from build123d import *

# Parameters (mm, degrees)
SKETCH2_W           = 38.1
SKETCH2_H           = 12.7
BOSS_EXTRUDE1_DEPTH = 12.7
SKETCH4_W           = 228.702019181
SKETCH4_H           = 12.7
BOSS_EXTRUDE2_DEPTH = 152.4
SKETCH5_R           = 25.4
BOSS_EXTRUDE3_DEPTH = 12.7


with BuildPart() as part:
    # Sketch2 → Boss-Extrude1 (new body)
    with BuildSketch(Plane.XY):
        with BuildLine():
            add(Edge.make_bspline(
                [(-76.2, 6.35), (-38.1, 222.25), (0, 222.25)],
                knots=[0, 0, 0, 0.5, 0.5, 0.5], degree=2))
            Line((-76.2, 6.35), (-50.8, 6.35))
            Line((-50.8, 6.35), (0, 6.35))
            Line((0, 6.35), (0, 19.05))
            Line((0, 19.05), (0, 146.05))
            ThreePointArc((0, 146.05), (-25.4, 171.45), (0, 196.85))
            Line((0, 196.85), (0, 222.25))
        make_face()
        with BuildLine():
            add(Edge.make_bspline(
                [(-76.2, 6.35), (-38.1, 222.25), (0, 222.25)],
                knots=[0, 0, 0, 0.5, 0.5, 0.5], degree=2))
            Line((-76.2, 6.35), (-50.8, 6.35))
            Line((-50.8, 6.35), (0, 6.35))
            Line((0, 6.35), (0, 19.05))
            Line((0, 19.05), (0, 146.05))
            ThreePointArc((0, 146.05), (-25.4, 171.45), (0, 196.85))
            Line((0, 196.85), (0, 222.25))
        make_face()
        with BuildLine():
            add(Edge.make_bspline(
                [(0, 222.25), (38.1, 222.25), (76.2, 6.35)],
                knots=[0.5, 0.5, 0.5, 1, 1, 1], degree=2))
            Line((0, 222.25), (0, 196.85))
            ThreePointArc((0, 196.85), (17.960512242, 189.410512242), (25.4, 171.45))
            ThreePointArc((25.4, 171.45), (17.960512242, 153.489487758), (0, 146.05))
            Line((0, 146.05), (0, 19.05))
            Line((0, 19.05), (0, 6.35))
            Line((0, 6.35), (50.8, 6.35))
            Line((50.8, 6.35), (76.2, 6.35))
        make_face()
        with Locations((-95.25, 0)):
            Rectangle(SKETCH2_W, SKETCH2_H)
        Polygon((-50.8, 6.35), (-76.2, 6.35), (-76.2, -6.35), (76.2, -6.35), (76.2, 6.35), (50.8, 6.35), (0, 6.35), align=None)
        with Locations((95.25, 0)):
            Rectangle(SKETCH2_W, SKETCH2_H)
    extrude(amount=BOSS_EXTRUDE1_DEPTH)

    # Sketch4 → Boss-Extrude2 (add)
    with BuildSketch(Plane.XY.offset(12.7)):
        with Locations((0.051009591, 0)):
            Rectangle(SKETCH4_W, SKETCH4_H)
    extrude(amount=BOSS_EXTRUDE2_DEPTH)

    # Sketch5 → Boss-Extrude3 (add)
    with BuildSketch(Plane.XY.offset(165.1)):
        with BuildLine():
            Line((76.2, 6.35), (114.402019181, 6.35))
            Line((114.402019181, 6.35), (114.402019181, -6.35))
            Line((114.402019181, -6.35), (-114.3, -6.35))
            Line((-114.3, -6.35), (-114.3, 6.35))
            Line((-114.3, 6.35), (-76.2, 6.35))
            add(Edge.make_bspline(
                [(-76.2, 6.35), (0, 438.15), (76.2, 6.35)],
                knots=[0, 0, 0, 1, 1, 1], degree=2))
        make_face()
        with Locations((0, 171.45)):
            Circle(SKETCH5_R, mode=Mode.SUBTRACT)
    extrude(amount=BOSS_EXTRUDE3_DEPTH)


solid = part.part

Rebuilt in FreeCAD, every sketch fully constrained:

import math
import FreeCAD as App
import Part
import Sketcher
Q = App.Units.Quantity


def add_polygon(sketch, points):
    """Adds a closed chain of lines whose ends are joined by coincident constraints."""
    first, n = sketch.GeometryCount, len(points)
    for a, b in zip(points, points[1:] + points[:1]):
        sketch.addGeometry(Part.LineSegment(App.Vector(*a, 0), App.Vector(*b, 0)), False)
    for i in range(n):
        sketch.addConstraint(Sketcher.Constraint("Coincident", first + i, 2, first + (i + 1) % n, 1))

doc = App.newDocument("Part")
body = doc.addObject("PartDesign::Body", "Body")

# Sketch on XY plane
sketch1 = body.newObject("Sketcher::SketchObject", "Sketch")
sketch1.AttachmentSupport = (doc.getObject("XY_Plane"), [""])
sketch1.MapMode = "FlatFace"
sketch1.addGeometry([
    Part.BSplineCurve([App.Vector(76.2, 6.35, 0), App.Vector(0, 438.15, 0), App.Vector(-76.2, 6.35, 0)], [3, 3], [0.5, 1.5], False, 2, [1, 1, 1], False),  # 0
    Part.LineSegment(App.Vector(-76.2, 6.35, 0), App.Vector(-114.3, 6.35, 0)),  # 1
    Part.LineSegment(App.Vector(-114.3, 6.35, 0), App.Vector(-114.3, -6.35, 0)),  # 2
    Part.LineSegment(App.Vector(-114.3, -6.35, 0), App.Vector(114.3, -6.35, 0)),  # 3
    Part.LineSegment(App.Vector(114.3, -6.35, 0), App.Vector(114.3, 6.35, 0)),  # 4
    Part.LineSegment(App.Vector(114.3, 6.35, 0), App.Vector(76.2, 6.35, 0)),  # 5
    Part.ArcOfCircle(Part.Circle(App.Vector(0, 171.45, 0), App.Vector(0, 0, 1), 25.4), math.radians(90), math.radians(270)),  # 6
    Part.ArcOfCircle(Part.Circle(App.Vector(0, 171.45, 0), App.Vector(0, 0, 1), 25.4), math.radians(0), math.radians(90)),  # 7
    Part.ArcOfCircle(Part.Circle(App.Vector(0, 171.45, 0), App.Vector(0, 0, 1), 25.4), math.radians(-90), math.radians(0)),  # 8
], False)
sketch1.addConstraint([
    Sketcher.Constraint("Block", 0),
    Sketcher.Constraint("Coincident", 0, 2, 1, 1),
    Sketcher.Constraint("Coincident", 1, 2, 2, 1),
    Sketcher.Constraint("Coincident", 2, 2, 3, 1),
    Sketcher.Constraint("Coincident", 3, 2, 4, 1),
    Sketcher.Constraint("Coincident", 4, 2, 5, 1),
    Sketcher.Constraint("Coincident", 5, 2, 0, 1),
    Sketcher.Constraint("Tangent", 6, 1, 7, 2),
    Sketcher.Constraint("Tangent", 7, 1, 8, 2),
    Sketcher.Constraint("Tangent", 8, 1, 6, 2),
    Sketcher.Constraint("Horizontal", 1),
    Sketcher.Constraint("Vertical", 2),
    Sketcher.Constraint("Horizontal", 3),
    Sketcher.Constraint("Vertical", 4),
    Sketcher.Constraint("Horizontal", 5),
    Sketcher.Constraint("Symmetric", 1, 2, 3, 2, -1, 1),
    Sketcher.Constraint("PointOnObject", 6, 3, -2),
    Sketcher.Constraint("PointOnObject", 6, 1, -2),
    Sketcher.Constraint("PointOnObject", 8, 1, -2),
    Sketcher.Constraint("Horizontal", 8, 3, 7, 1),
    Sketcher.Constraint("Radius", 6, Q("1 in")),
    Sketcher.Constraint("DistanceX", 3, 1, 3, 2, Q("9 in")),
    Sketcher.Constraint("DistanceY", 2, 2, 6, 3, Q("7 in")),
])
pad1 = body.newObject("PartDesign::Pad", "Pad")
pad1.Profile = sketch1
pad1.Length = Q("0.5 in")

# Sketch on XY plane
sketch2 = body.newObject("Sketcher::SketchObject", "Sketch001")
sketch2.AttachmentSupport = (doc.getObject("XY_Plane"), [""])
sketch2.MapMode = "FlatFace"
sketch2.AttachmentOffset = App.Placement(App.Vector(0, 0, 0.5 * 25.4), App.Rotation())
add_polygon(sketch2, [(-114.3, 6.35), (-114.3, -6.35), (114.402019, -6.35), (114.402019, 6.35)])  # lines 0-3
sketch2.addConstraint([
    Sketcher.Constraint("Vertical", 0),
    Sketcher.Constraint("Horizontal", 1),
    Sketcher.Constraint("Vertical", 2),
    Sketcher.Constraint("Horizontal", 3),
    Sketcher.Constraint("DistanceY", 0, 2, 0, 1, Q("0.5 in")),
    Sketcher.Constraint("DistanceX", 0, 2, -1, 1, Q("4.5 in")),
    Sketcher.Constraint("DistanceY", 0, 2, -1, 1, Q("0.25 in")),
    Sketcher.Constraint("DistanceX", 1, 1, 1, 2, Q("228.702019 mm")),
])
pad2 = body.newObject("PartDesign::Pad", "Pad001")
pad2.Profile = sketch2
pad2.Length = Q("6 in")

# Sketch on XY plane
sketch3 = body.newObject("Sketcher::SketchObject", "Sketch002")
sketch3.AttachmentSupport = (doc.getObject("XY_Plane"), [""])
sketch3.MapMode = "FlatFace"
sketch3.AttachmentOffset = App.Placement(App.Vector(0, 0, 6.5 * 25.4), App.Rotation())
sketch3.addGeometry([
    Part.LineSegment(App.Vector(114.402019, 6.35, 0), App.Vector(76.2, 6.35, 0)),  # 0
    Part.BSplineCurve([App.Vector(-76.2, 6.35, 0), App.Vector(0, 438.15, 0), App.Vector(76.2, 6.35, 0)], [3, 3], [0, 1], False, 2, [1, 1, 1], False),  # 1
    Part.LineSegment(App.Vector(-76.2, 6.35, 0), App.Vector(-114.3, 6.35, 0)),  # 2
    Part.LineSegment(App.Vector(-114.3, 6.35, 0), App.Vector(-114.3, -6.35, 0)),  # 3
    Part.LineSegment(App.Vector(-114.3, -6.35, 0), App.Vector(114.402019, -6.35, 0)),  # 4
    Part.LineSegment(App.Vector(114.402019, -6.35, 0), App.Vector(114.402019, 6.35, 0)),  # 5
    Part.Circle(App.Vector(0, 171.45, 0), App.Vector(0, 0, 1), 25.4),  # 6
], False)
sketch3.addConstraint([
    Sketcher.Constraint("Block", 1),
    Sketcher.Constraint("Coincident", 0, 2, 1, 2),
    Sketcher.Constraint("Coincident", 1, 1, 2, 1),
    Sketcher.Constraint("Coincident", 2, 2, 3, 1),
    Sketcher.Constraint("Coincident", 3, 2, 4, 1),
    Sketcher.Constraint("Coincident", 4, 2, 5, 1),
    Sketcher.Constraint("Coincident", 5, 2, 0, 1),
    Sketcher.Constraint("Horizontal", 0),
    Sketcher.Constraint("Horizontal", 2),
    Sketcher.Constraint("Vertical", 3),
    Sketcher.Constraint("Horizontal", 4),
    Sketcher.Constraint("Vertical", 5),
    Sketcher.Constraint("PointOnObject", 6, 3, -2),
    Sketcher.Constraint("Diameter", 6, Q("2 in")),
    Sketcher.Constraint("DistanceX", 2, 2, 2, 1, Q("1.5 in")),
    Sketcher.Constraint("DistanceY", 3, 2, 3, 1, Q("0.5 in")),
    Sketcher.Constraint("DistanceY", 3, 2, 6, 3, Q("7 in")),
    Sketcher.Constraint("DistanceX", 0, 2, 0, 1, Q("38.202019 mm")),
])
pad3 = body.newObject("PartDesign::Pad", "Pad002")
pad3.Profile = sketch3
pad3.Length = Q("0.5 in")

doc.recompute()
